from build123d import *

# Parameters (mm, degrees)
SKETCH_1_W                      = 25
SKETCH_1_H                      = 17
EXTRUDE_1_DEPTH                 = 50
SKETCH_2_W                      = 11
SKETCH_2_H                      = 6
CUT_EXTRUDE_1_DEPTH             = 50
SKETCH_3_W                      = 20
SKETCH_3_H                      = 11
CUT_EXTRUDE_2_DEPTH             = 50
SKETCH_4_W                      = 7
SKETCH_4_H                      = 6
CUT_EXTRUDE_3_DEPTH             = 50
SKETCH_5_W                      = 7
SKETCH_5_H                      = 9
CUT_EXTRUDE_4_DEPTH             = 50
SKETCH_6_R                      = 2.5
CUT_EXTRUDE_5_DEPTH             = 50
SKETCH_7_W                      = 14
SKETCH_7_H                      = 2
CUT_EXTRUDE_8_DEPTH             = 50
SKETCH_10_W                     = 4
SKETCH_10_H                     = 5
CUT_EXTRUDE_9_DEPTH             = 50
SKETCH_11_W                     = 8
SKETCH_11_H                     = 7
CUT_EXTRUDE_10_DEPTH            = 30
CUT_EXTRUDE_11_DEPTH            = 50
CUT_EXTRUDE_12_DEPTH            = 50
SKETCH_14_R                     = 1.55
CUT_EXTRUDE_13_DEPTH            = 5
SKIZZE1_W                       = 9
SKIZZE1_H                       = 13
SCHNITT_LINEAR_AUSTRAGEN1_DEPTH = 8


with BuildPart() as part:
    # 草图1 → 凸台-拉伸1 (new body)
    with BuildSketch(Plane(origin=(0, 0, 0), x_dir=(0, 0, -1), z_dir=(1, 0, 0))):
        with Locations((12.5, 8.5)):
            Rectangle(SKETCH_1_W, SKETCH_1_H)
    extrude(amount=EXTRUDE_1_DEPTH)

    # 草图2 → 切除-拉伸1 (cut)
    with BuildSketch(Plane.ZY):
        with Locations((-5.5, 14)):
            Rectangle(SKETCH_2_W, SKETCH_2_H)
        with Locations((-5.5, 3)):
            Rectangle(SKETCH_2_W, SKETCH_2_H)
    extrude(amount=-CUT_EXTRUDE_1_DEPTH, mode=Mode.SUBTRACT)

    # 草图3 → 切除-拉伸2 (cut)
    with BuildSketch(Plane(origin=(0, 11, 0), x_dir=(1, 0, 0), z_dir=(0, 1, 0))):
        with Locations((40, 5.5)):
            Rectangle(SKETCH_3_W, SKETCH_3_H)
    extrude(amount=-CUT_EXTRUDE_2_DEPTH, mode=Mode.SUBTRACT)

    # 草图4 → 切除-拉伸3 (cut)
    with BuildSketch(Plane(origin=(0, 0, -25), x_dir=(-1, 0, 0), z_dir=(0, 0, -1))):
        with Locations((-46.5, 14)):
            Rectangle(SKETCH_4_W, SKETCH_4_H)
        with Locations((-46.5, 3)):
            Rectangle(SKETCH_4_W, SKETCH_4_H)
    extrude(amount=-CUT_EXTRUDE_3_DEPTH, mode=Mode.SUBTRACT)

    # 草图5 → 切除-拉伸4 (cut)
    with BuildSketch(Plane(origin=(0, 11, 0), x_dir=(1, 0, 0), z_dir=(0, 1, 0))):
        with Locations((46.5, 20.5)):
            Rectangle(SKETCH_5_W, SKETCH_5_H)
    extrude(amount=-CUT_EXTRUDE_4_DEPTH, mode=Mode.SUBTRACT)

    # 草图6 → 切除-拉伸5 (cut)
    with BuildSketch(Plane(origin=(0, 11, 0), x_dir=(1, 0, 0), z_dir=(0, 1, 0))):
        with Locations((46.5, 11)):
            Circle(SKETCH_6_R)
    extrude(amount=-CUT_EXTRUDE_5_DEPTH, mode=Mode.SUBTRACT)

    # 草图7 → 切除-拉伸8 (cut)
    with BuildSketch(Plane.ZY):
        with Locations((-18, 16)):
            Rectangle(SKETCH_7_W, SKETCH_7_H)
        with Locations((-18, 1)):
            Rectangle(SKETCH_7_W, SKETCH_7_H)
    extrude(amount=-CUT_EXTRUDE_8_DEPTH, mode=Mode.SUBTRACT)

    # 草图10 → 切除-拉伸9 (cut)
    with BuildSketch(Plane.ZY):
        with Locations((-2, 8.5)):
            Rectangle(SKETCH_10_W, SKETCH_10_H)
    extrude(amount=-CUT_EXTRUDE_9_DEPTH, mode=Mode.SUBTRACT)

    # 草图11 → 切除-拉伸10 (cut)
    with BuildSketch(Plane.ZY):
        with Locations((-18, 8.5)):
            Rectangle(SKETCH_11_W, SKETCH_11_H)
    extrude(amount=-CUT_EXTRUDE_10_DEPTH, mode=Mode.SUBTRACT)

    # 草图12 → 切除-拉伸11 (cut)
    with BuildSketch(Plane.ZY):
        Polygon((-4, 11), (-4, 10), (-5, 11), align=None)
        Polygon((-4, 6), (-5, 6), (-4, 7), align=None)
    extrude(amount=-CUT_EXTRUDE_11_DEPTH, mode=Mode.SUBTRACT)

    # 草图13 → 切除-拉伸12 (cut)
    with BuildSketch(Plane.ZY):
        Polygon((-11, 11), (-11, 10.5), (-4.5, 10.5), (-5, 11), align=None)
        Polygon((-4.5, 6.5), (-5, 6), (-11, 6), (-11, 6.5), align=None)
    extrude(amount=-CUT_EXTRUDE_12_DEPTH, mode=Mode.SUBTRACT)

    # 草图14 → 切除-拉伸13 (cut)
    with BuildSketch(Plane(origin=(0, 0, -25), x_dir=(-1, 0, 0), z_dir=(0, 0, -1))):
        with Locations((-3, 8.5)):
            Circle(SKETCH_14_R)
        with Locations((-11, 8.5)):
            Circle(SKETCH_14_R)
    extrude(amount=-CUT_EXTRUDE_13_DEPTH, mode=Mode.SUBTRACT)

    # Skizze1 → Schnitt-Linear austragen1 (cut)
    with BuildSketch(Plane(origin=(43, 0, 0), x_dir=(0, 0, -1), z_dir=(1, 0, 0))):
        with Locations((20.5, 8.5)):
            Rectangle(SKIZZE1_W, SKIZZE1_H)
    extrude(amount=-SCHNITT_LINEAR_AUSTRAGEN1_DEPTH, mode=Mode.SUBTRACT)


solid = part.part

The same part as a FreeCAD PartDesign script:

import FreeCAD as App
import Part
import Sketcher
Q = App.Units.Quantity

doc = App.newDocument("Part")
body = doc.addObject("PartDesign::Body", "Body")

sketch1 = body.newObject("Sketcher::SketchObject", "Sketch")
sketch1.AttachmentSupport = (doc.getObject("YZ_Plane"), [""])
sketch1.MapMode = "FlatFace"
sketch1.addGeometry(Part.LineSegment(App.Vector(17, 0, 0), App.Vector(0, 0, 0)), False)
sketch1.addGeometry(Part.LineSegment(App.Vector(0, 0, 0), App.Vector(0, -25, 0)), False)
sketch1.addGeometry(Part.LineSegment(App.Vector(0, -25, 0), App.Vector(17, -25, 0)), False)
sketch1.addGeometry(Part.LineSegment(App.Vector(17, -25, 0), App.Vector(17, 0, 0)), False)
sketch1.addConstraint(Sketcher.Constraint("Coincident", 0, 2, 1, 1))
sketch1.addConstraint(Sketcher.Constraint("Coincident", 1, 2, 2, 1))
sketch1.addConstraint(Sketcher.Constraint("Coincident", 2, 2, 3, 1))
sketch1.addConstraint(Sketcher.Constraint("Coincident", 3, 2, 0, 1))
sketch1.addConstraint(Sketcher.Constraint("Horizontal", 0))
sketch1.addConstraint(Sketcher.Constraint("Vertical", 1))
sketch1.addConstraint(Sketcher.Constraint("Horizontal", 2))
sketch1.addConstraint(Sketcher.Constraint("Vertical", 3))
sketch1.addConstraint(Sketcher.Constraint("Coincident", 0, 2, -1, 1))
sketch1.addConstraint(Sketcher.Constraint("DistanceX", 0, 2, 0, 1, Q("17 mm")))
sketch1.addConstraint(Sketcher.Constraint("DistanceY", 1, 2, 1, 1, Q("25 mm")))
pad1 = body.newObject("PartDesign::Pad", "Pad")
pad1.Profile = sketch1
pad1.Length = 50

sketch2 = body.newObject("Sketcher::SketchObject", "Sketch001")
sketch2.AttachmentSupport = (doc.getObject("YZ_Plane"), [""])
sketch2.MapMode = "FlatFace"
sketch2.addGeometry(Part.LineSegment(App.Vector(17, -11, 0), App.Vector(11, -11, 0)), False)
sketch2.addGeometry(Part.LineSegment(App.Vector(11, -11, 0), App.Vector(11, 0, 0)), False)
sketch2.addGeometry(Part.LineSegment(App.Vector(11, 0, 0), App.Vector(17, 0, 0)), False)
sketch2.addGeometry(Part.LineSegment(App.Vector(17, 0, 0), App.Vector(17, -11, 0)), False)
sketch2.addGeometry(Part.LineSegment(App.Vector(6, -11, 0), App.Vector(0, -11, 0)), False)
sketch2.addGeometry(Part.LineSegment(App.Vector(0, -11, 0), App.Vector(0, 0, 0)), False)
sketch2.addGeometry(Part.LineSegment(App.Vector(0, 0, 0), App.Vector(6, 0, 0)), False)
sketch2.addGeometry(Part.LineSegment(App.Vector(6, 0, 0), App.Vector(6, -11, 0)), False)
sketch2.addConstraint(Sketcher.Constraint("Coincident", 0, 2, 1, 1))
sketch2.addConstraint(Sketcher.Constraint("Coincident", 1, 2, 2, 1))
sketch2.addConstraint(Sketcher.Constraint("Coincident", 2, 2, 3, 1))
sketch2.addConstraint(Sketcher.Constraint("Coincident", 3, 2, 0, 1))
sketch2.addConstraint(Sketcher.Constraint("Coincident", 4, 2, 5, 1))
sketch2.addConstraint(Sketcher.Constraint("Coincident", 5, 2, 6, 1))
sketch2.addConstraint(Sketcher.Constraint("Coincident", 6, 2, 7, 1))
sketch2.addConstraint(Sketcher.Constraint("Coincident", 7, 2, 4, 1))
sketch2.addConstraint(Sketcher.Constraint("Horizontal", 0))
sketch2.addConstraint(Sketcher.Constraint("Vertical", 1))
sketch2.addConstraint(Sketcher.Constraint("Horizontal", 2))
sketch2.addConstraint(Sketcher.Constraint("Vertical", 3))
sketch2.addConstraint(Sketcher.Constraint("Horizontal", 4))
sketch2.addConstraint(Sketcher.Constraint("Vertical", 5))
sketch2.addConstraint(Sketcher.Constraint("Horizontal", 6))
sketch2.addConstraint(Sketcher.Constraint("Vertical", 7))
sketch2.addConstraint(Sketcher.Constraint("Coincident", 5, 2, -1, 1))
sketch2.addConstraint(Sketcher.Constraint("PointOnObject", 1, 2, -1))
sketch2.addConstraint(Sketcher.Constraint("Horizontal", 3, 2, 4, 2))
sketch2.addConstraint(Sketcher.Constraint("Equal", 2, 4))
sketch2.addConstraint(Sketcher.Constraint("DistanceX", 0, 2, 0, 1, Q("6 mm")))
sketch2.addConstraint(Sketcher.Constraint("DistanceY", 1, 1, 1, 2, Q("11 mm")))
sketch2.addConstraint(Sketcher.Constraint("DistanceX", -1, 1, 0, 2, Q("11 mm")))
pocket1 = body.newObject("PartDesign::Pocket", "Pocket")
pocket1.Profile = sketch2
pocket1.Length = 50
pocket1.Reversed = True

sketch3 = body.newObject("Sketcher::SketchObject", "Sketch002")
sketch3.AttachmentSupport = (doc.getObject("XZ_Plane"), [""])
sketch3.MapMode = "FlatFace"
sketch3.AttachmentOffset = App.Placement(App.Vector(0, 0, -11), App.Rotation())
sketch3.addGeometry(Part.LineSegment(App.Vector(30, -11, 0), App.Vector(30, 0, 0)), False)
sketch3.addGeometry(Part.LineSegment(App.Vector(30, 0, 0), App.Vector(50, 0, 0)), False)
sketch3.addGeometry(Part.LineSegment(App.Vector(50, 0, 0), App.Vector(50, -11, 0)), False)
sketch3.addGeometry(Part.LineSegment(App.Vector(50, -11, 0), App.Vector(30, -11, 0)), False)
sketch3.addConstraint(Sketcher.Constraint("Coincident", 0, 2, 1, 1))
sketch3.addConstraint(Sketcher.Constraint("Coincident", 1, 2, 2, 1))
sketch3.addConstraint(Sketcher.Constraint("Coincident", 2, 2, 3, 1))
sketch3.addConstraint(Sketcher.Constraint("Coincident", 3, 2, 0, 1))
sketch3.addConstraint(Sketcher.Constraint("Vertical", 0))
sketch3.addConstraint(Sketcher.Constraint("Horizontal", 1))
sketch3.addConstraint(Sketcher.Constraint("Vertical", 2))
sketch3.addConstraint(Sketcher.Constraint("Horizontal", 3))
sketch3.addConstraint(Sketcher.Constraint("PointOnObject", 0, 2, -1))
sketch3.addConstraint(Sketcher.Constraint("DistanceX", 1, 1, 1, 2, Q("20 mm")))
sketch3.addConstraint(Sketcher.Constraint("DistanceY", 0, 1, 0, 2, Q("11 mm")))
sketch3.addConstraint(Sketcher.Constraint("DistanceX", -1, 1, 0, 2, Q("30 mm")))
pocket2 = body.newObject("PartDesign::Pocket", "Pocket001")
pocket2.Profile = sketch3
pocket2.Length = 50
pocket2.Reversed = True

sketch4 = body.newObject("Sketcher::SketchObject", "Sketch003")
sketch4.AttachmentSupport = (doc.getObject("XY_Plane"), [""])
sketch4.MapMode = "FlatFace"
sketch4.AttachmentOffset = App.Placement(App.Vector(0, 0, -25), App.Rotation())
sketch4.addGeometry(Part.LineSegment(App.Vector(50, 17, 0), App.Vector(50, 11, 0)), False)
sketch4.addGeometry(Part.LineSegment(App.Vector(50, 11, 0), App.Vector(43, 11, 0)), False)
sketch4.addGeometry(Part.LineSegment(App.Vector(43, 11, 0), App.Vector(43, 17, 0)), False)
sketch4.addGeometry(Part.LineSegment(App.Vector(43, 17, 0), App.Vector(50, 17, 0)), False)
sketch4.addGeometry(Part.LineSegment(App.Vector(50, 6, 0), App.Vector(50, 0, 0)), False)
sketch4.addGeometry(Part.LineSegment(App.Vector(50, 0, 0), App.Vector(43, 0, 0)), False)
sketch4.addGeometry(Part.LineSegment(App.Vector(43, 0, 0), App.Vector(43, 6, 0)), False)
sketch4.addGeometry(Part.LineSegment(App.Vector(43, 6, 0), App.Vector(50, 6, 0)), False)
sketch4.addConstraint(Sketcher.Constraint("Coincident", 0, 2, 1, 1))
sketch4.addConstraint(Sketcher.Constraint("Coincident", 1, 2, 2, 1))
sketch4.addConstraint(Sketcher.Constraint("Coincident", 2, 2, 3, 1))
sketch4.addConstraint(Sketcher.Constraint("Coincident", 3, 2, 0, 1))
sketch4.addConstraint(Sketcher.Constraint("Coincident", 4, 2, 5, 1))
sketch4.addConstraint(Sketcher.Constraint("Coincident", 5, 2, 6, 1))
sketch4.addConstraint(Sketcher.Constraint("Coincident", 6, 2, 7, 1))
sketch4.addConstraint(Sketcher.Constraint("Coincident", 7, 2, 4, 1))
sketch4.addConstraint(Sketcher.Constraint("Vertical", 0))
sketch4.addConstraint(Sketcher.Constraint("Horizontal", 1))
sketch4.addConstraint(Sketcher.Constraint("Vertical", 2))
sketch4.addConstraint(Sketcher.Constraint("Horizontal", 3))
sketch4.addConstraint(Sketcher.Constraint("Vertical", 4))
sketch4.addConstraint(Sketcher.Constraint("Horizontal", 5))
sketch4.addConstraint(Sketcher.Constraint("Vertical", 6))
sketch4.addConstraint(Sketcher.Constraint("Horizontal", 7))
sketch4.addConstraint(Sketcher.Constraint("PointOnObject", 4, 2, -1))
sketch4.addConstraint(Sketcher.Constraint("Vertical", 3, 2, 4, 2))
sketch4.addConstraint(Sketcher.Constraint("Vertical", 2, 2, 5, 2))
sketch4.addConstraint(Sketcher.Constraint("Equal", 2, 4))
sketch4.addConstraint(Sketcher.Constraint("DistanceX", 1, 2, 1, 1, Q("7 mm")))
sketch4.addConstraint(Sketcher.Constraint("DistanceY", 0, 2, 0, 1, Q("6 mm")))
sketch4.addConstraint(Sketcher.Constraint("DistanceX", -1, 1, 0, 2, Q("50 mm")))
sketch4.addConstraint(Sketcher.Constraint("DistanceY", -1, 1, 0, 2, Q("11 mm")))
pocket3 = body.newObject("PartDesign::Pocket", "Pocket002")
pocket3.Profile = sketch4
pocket3.Length = 50
pocket3.Reversed = True

sketch5 = body.newObject("Sketcher::SketchObject", "Sketch004")
sketch5.AttachmentSupport = (doc.getObject("XZ_Plane"), [""])
sketch5.MapMode = "FlatFace"
sketch5.AttachmentOffset = App.Placement(App.Vector(0, 0, -11), App.Rotation())
sketch5.addGeometry(Part.LineSegment(App.Vector(43, -25, 0), App.Vector(43, -16, 0)), False)
sketch5.addGeometry(Part.LineSegment(App.Vector(43, -16, 0), App.Vector(50, -16, 0)), False)
sketch5.addGeometry(Part.LineSegment(App.Vector(50, -16, 0), App.Vector(50, -25, 0)), False)
sketch5.addGeometry(Part.LineSegment(App.Vector(50, -25, 0), App.Vector(43, -25, 0)), False)
sketch5.addConstraint(Sketcher.Constraint("Coincident", 0, 2, 1, 1))
sketch5.addConstraint(Sketcher.Constraint("Coincident", 1, 2, 2, 1))
sketch5.addConstraint(Sketcher.Constraint("Coincident", 2, 2, 3, 1))
sketch5.addConstraint(Sketcher.Constraint("Coincident", 3, 2, 0, 1))
sketch5.addConstraint(Sketcher.Constraint("Vertical", 0))
sketch5.addConstraint(Sketcher.Constraint("Horizontal", 1))
sketch5.addConstraint(Sketcher.Constraint("Vertical", 2))
sketch5.addConstraint(Sketcher.Constraint("Horizontal", 3))
sketch5.addConstraint(Sketcher.Constraint("DistanceX", 1, 1, 1, 2, Q("7 mm")))
sketch5.addConstraint(Sketcher.Constraint("DistanceY", 0, 1, 0, 2, Q("9 mm")))
sketch5.addConstraint(Sketcher.Constraint("DistanceX", -1, 1, 0, 2, Q("43 mm")))
sketch5.addConstraint(Sketcher.Constraint("DistanceY", 0, 2, -1, 1, Q("16 mm")))
pocket4 = body.newObject("PartDesign::Pocket", "Pocket003")
pocket4.Profile = sketch5
pocket4.Length = 50
pocket4.Reversed = True

sketch6 = body.newObject("Sketcher::SketchObject", "Sketch005")
sketch6.AttachmentSupport = (doc.getObject("XZ_Plane"), [""])
sketch6.MapMode = "FlatFace"
sketch6.AttachmentOffset = App.Placement(App.Vector(0, 0, -11), App.Rotation())
sketch6.addGeometry(Part.Circle(App.Vector(46.5, -11, 0), App.Vector(0, 0, 1), 2.5), False)
sketch6.addConstraint(Sketcher.Constraint("Diameter", 0, Q("5 mm")))
sketch6.addConstraint(Sketcher.Constraint("DistanceY", 0, 3, -1, 1, Q("11 mm")))
sketch6.addConstraint(Sketcher.Constraint("DistanceX", -1, 1, 0, 3, Q("46.5 mm")))
pocket5 = body.newObject("PartDesign::Pocket", "Pocket004")
pocket5.Profile = sketch6
pocket5.Length = 50
pocket5.Reversed = True

sketch7 = body.newObject("Sketcher::SketchObject", "Sketch006")
sketch7.AttachmentSupport = (doc.getObject("YZ_Plane"), [""])
sketch7.MapMode = "FlatFace"
sketch7.addGeometry(Part.LineSegment(App.Vector(17, -25, 0), App.Vector(15, -25, 0)), False)
sketch7.addGeometry(Part.LineSegment(App.Vector(15, -25, 0), App.Vector(15, -11, 0)), False)
sketch7.addGeometry(Part.LineSegment(App.Vector(15, -11, 0), App.Vector(17, -11, 0)), False)
sketch7.addGeometry(Part.LineSegment(App.Vector(17, -11, 0), App.Vector(17, -25, 0)), False)
sketch7.addGeometry(Part.LineSegment(App.Vector(2, -25, 0), App.Vector(0, -25, 0)), False)
sketch7.addGeometry(Part.LineSegment(App.Vector(0, -25, 0), App.Vector(0, -11, 0)), False)
sketch7.addGeometry(Part.LineSegment(App.Vector(0, -11, 0), App.Vector(2, -11, 0)), False)
sketch7.addGeometry(Part.LineSegment(App.Vector(2, -11, 0), App.Vector(2, -25, 0)), False)
sketch7.addConstraint(Sketcher.Constraint("Coincident", 0, 2, 1, 1))
sketch7.addConstraint(Sketcher.Constraint("Coincident", 1, 2, 2, 1))
sketch7.addConstraint(Sketcher.Constraint("Coincident", 2, 2, 3, 1))
sketch7.addConstraint(Sketcher.Constraint("Coincident", 3, 2, 0, 1))
sketch7.addConstraint(Sketcher.Constraint("Coincident", 4, 2, 5, 1))
sketch7.addConstraint(Sketcher.Constraint("Coincident", 5, 2, 6, 1))
sketch7.addConstraint(Sketcher.Constraint("Coincident", 6, 2, 7, 1))
sketch7.addConstraint(Sketcher.Constraint("Coincident", 7, 2, 4, 1))
sketch7.addConstraint(Sketcher.Constraint("Horizontal", 0))
sketch7.addConstraint(Sketcher.Constraint("Vertical", 1))
sketch7.addConstraint(Sketcher.Constraint("Horizontal", 2))
sketch7.addConstraint(Sketcher.Constraint("Vertical", 3))
sketch7.addConstraint(Sketcher.Constraint("Horizontal", 4))
sketch7.addConstraint(Sketcher.Constraint("Vertical", 5))
sketch7.addConstraint(Sketcher.Constraint("Horizontal", 6))
sketch7.addConstraint(Sketcher.Constraint("Vertical", 7))
sketch7.addConstraint(Sketcher.Constraint("PointOnObject", 4, 2, -2))
sketch7.addConstraint(Sketcher.Constraint("Horizontal", 3, 2, 4, 2))
sketch7.addConstraint(Sketcher.Constraint("Horizontal", 2, 2, 5, 2))
sketch7.addConstraint(Sketcher.Constraint("Equal", 2, 4))
sketch7.addConstraint(Sketcher.Constraint("DistanceX", 0, 2, 0, 1, Q("2 mm")))
sketch7.addConstraint(Sketcher.Constraint("DistanceY", 1, 1, 1, 2, Q("14 mm")))
sketch7.addConstraint(Sketcher.Constraint("DistanceX", -1, 1, 0, 2, Q("15 mm")))
sketch7.addConstraint(Sketcher.Constraint("DistanceY", 0, 2, -1, 1, Q("25 mm")))
pocket6 = body.newObject("PartDesign::Pocket", "Pocket005")
pocket6.Profile = sketch7
pocket6.Length = 50
pocket6.Reversed = True

sketch8 = body.newObject("Sketcher::SketchObject", "Sketch007")
sketch8.AttachmentSupport = (doc.getObject("YZ_Plane"), [""])
sketch8.MapMode = "FlatFace"
sketch8.addGeometry(Part.LineSegment(App.Vector(11, -4, 0), App.Vector(6, -4, 0)), False)
sketch8.addGeometry(Part.LineSegment(App.Vector(6, -4, 0), App.Vector(6, 0, 0)), False)
sketch8.addGeometry(Part.LineSegment(App.Vector(6, 0, 0), App.Vector(11, 0, 0)), False)
sketch8.addGeometry(Part.LineSegment(App.Vector(11, 0, 0), App.Vector(11, -4, 0)), False)
sketch8.addConstraint(Sketcher.Constraint("Coincident", 0, 2, 1, 1))
sketch8.addConstraint(Sketcher.Constraint("Coincident", 1, 2, 2, 1))
sketch8.addConstraint(Sketcher.Constraint("Coincident", 2, 2, 3, 1))
sketch8.addConstraint(Sketcher.Constraint("Coincident", 3, 2, 0, 1))
sketch8.addConstraint(Sketcher.Constraint("Horizontal", 0))
sketch8.addConstraint(Sketcher.Constraint("Vertical", 1))
sketch8.addConstraint(Sketcher.Constraint("Horizontal", 2))
sketch8.addConstraint(Sketcher.Constraint("Vertical", 3))
sketch8.addConstraint(Sketcher.Constraint("PointOnObject", 1, 2, -1))
sketch8.addConstraint(Sketcher.Constraint("DistanceX", 0, 2, 0, 1, Q("5 mm")))
sketch8.addConstraint(Sketcher.Constraint("DistanceY", 1, 1, 1, 2, Q("4 mm")))
sketch8.addConstraint(Sketcher.Constraint("DistanceX", -1, 1, 0, 2, Q("6 mm")))
pocket7 = body.newObject("PartDesign::Pocket", "Pocket006")
pocket7.Profile = sketch8
pocket7.Length = 50
pocket7.Reversed = True

sketch9 = body.newObject("Sketcher::SketchObject", "Sketch008")
sketch9.AttachmentSupport = (doc.getObject("YZ_Plane"), [""])
sketch9.MapMode = "FlatFace"
sketch9.addGeometry(Part.LineSegment(App.Vector(12, -22, 0), App.Vector(5, -22, 0)), False)
sketch9.addGeometry(Part.LineSegment(App.Vector(5, -22, 0), App.Vector(5, -14, 0)), False)
sketch9.addGeometry(Part.LineSegment(App.Vector(5, -14, 0), App.Vector(12, -14, 0)), False)
sketch9.addGeometry(Part.LineSegment(App.Vector(12, -14, 0), App.Vector(12, -22, 0)), False)
sketch9.addConstraint(Sketcher.Constraint("Coincident", 0, 2, 1, 1))
sketch9.addConstraint(Sketcher.Constraint("Coincident", 1, 2, 2, 1))
sketch9.addConstraint(Sketcher.Constraint("Coincident", 2, 2, 3, 1))
sketch9.addConstraint(Sketcher.Constraint("Coincident", 3, 2, 0, 1))
sketch9.addConstraint(Sketcher.Constraint("Horizontal", 0))
sketch9.addConstraint(Sketcher.Constraint("Vertical", 1))
sketch9.addConstraint(Sketcher.Constraint("Horizontal", 2))
sketch9.addConstraint(Sketcher.Constraint("Vertical", 3))
sketch9.addConstraint(Sketcher.Constraint("DistanceX", 0, 2, 0, 1, Q("7 mm")))
sketch9.addConstraint(Sketcher.Constraint("DistanceY", 1, 1, 1, 2, Q("8 mm")))
sketch9.addConstraint(Sketcher.Constraint("DistanceX", -1, 1, 0, 2, Q("5 mm")))
sketch9.addConstraint(Sketcher.Constraint("DistanceY", 0, 2, -1, 1, Q("22 mm")))
pocket8 = body.newObject("PartDesign::Pocket", "Pocket007")
pocket8.Profile = sketch9
pocket8.Length = 30
pocket8.Reversed = True

sketch10 = body.newObject("Sketcher::SketchObject", "Sketch009")
sketch10.AttachmentSupport = (doc.getObject("YZ_Plane"), [""])
sketch10.MapMode = "FlatFace"
sketch10.addGeometry(Part.LineSegment(App.Vector(10, -4, 0), App.Vector(11, -4, 0)), False)
sketch10.addGeometry(Part.LineSegment(App.Vector(11, -4, 0), App.Vector(11, -5, 0)), False)
sketch10.addGeometry(Part.LineSegment(App.Vector(11, -5, 0), App.Vector(10, -4, 0)), False)
sketch10.addGeometry(Part.LineSegment(App.Vector(6, -5, 0), App.Vector(6, -4, 0)), False)
sketch10.addGeometry(Part.LineSegment(App.Vector(6, -4, 0), App.Vector(7, -4, 0)), False)
sketch10.addGeometry(Part.LineSegment(App.Vector(7, -4, 0), App.Vector(6, -5, 0)), False)
sketch10.addConstraint(Sketcher.Constraint("Coincident", 0, 2, 1, 1))
sketch10.addConstraint(Sketcher.Constraint("Coincident", 1, 2, 2, 1))
sketch10.addConstraint(Sketcher.Constraint("Coincident", 2, 2, 0, 1))
sketch10.addConstraint(Sketcher.Constraint("Coincident", 3, 2, 4, 1))
sketch10.addConstraint(Sketcher.Constraint("Coincident", 4, 2, 5, 1))
sketch10.addConstraint(Sketcher.Constraint("Coincident", 5, 2, 3, 1))
sketch10.addConstraint(Sketcher.Constraint("Horizontal", 0))
sketch10.addConstraint(Sketcher.Constraint("Vertical", 1))
sketch10.addConstraint(Sketcher.Constraint("Vertical", 3))
sketch10.addConstraint(Sketcher.Constraint("Horizontal", 4))
sketch10.addConstraint(Sketcher.Constraint("Perpendicular", 2, 5))
sketch10.addConstraint(Sketcher.Constraint("Horizontal", 2, 2, 3, 2))
sketch10.addConstraint(Sketcher.Constraint("Horizontal", 1, 2, 5, 2))
sketch10.addConstraint(Sketcher.Constraint("Equal", 0, 4))
sketch10.addConstraint(Sketcher.Constraint("DistanceX", 0, 1, 0, 2, Q("1 mm")))
sketch10.addConstraint(Sketcher.Constraint("DistanceX", -1, 1, 0, 2, Q("11 mm")))
sketch10.addConstraint(Sketcher.Constraint("DistanceY", 0, 2, -1, 1, Q("4 mm")))
sketch10.addConstraint(Sketcher.Constraint("DistanceX", -1, 1, 3, 2, Q("6 mm")))
pocket9 = body.newObject("PartDesign::Pocket", "Pocket008")
pocket9.Profile = sketch10
pocket9.Length = 50
pocket9.Reversed = True

sketch11 = body.newObject("Sketcher::SketchObject", "Sketch010")
sketch11.AttachmentSupport = (doc.getObject("YZ_Plane"), [""])
sketch11.MapMode = "FlatFace"
sketch11.addGeometry(Part.LineSegment(App.Vector(11, -11, 0), App.Vector(10.5, -11, 0)), False)
sketch11.addGeometry(Part.LineSegment(App.Vector(10.5, -11, 0), App.Vector(10.5, -4.5, 0)), False)
sketch11.addGeometry(Part.LineSegment(App.Vector(10.5, -4.5, 0), App.Vector(11, -5, 0)), False)
sketch11.addGeometry(Part.LineSegment(App.Vector(11, -5, 0), App.Vector(11, -11, 0)), False)
sketch11.addGeometry(Part.LineSegment(App.Vector(6, -5, 0), App.Vector(6.5, -4.5, 0)), False)
sketch11.addGeometry(Part.LineSegment(App.Vector(6.5, -4.5, 0), App.Vector(6.5, -11, 0)), False)
sketch11.addGeometry(Part.LineSegment(App.Vector(6.5, -11, 0), App.Vector(6, -11, 0)), False)
sketch11.addGeometry(Part.LineSegment(App.Vector(6, -11, 0), App.Vector(6, -5, 0)), False)
sketch11.addConstraint(Sketcher.Constraint("Coincident", 0, 2, 1, 1))
sketch11.addConstraint(Sketcher.Constraint("Coincident", 1, 2, 2, 1))
sketch11.addConstraint(Sketcher.Constraint("Coincident", 2, 2, 3, 1))
sketch11.addConstraint(Sketcher.Constraint("Coincident", 3, 2, 0, 1))
sketch11.addConstraint(Sketcher.Constraint("Coincident", 4, 2, 5, 1))
sketch11.addConstraint(Sketcher.Constraint("Coincident", 5, 2, 6, 1))
sketch11.addConstraint(Sketcher.Constraint("Coincident", 6, 2, 7, 1))
sketch11.addConstraint(Sketcher.Constraint("Coincident", 7, 2, 4, 1))
sketch11.addConstraint(Sketcher.Constraint("Horizontal", 0))
sketch11.addConstraint(Sketcher.Constraint("Vertical", 1))
sketch11.addConstraint(Sketcher.Constraint("Vertical", 3))
sketch11.addConstraint(Sketcher.Constraint("Vertical", 5))
sketch11.addConstraint(Sketcher.Constraint("Horizontal", 6))
sketch11.addConstraint(Sketcher.Constraint("Vertical", 7))
sketch11.addConstraint(Sketcher.Constraint("Perpendicular", 2, 4))
sketch11.addConstraint(Sketcher.Constraint("Horizontal", 1, 2, 4, 2))
sketch11.addConstraint(Sketcher.Constraint("Horizontal", 3, 2, 5, 2))
sketch11.addConstraint(Sketcher.Constraint("Horizontal", 2, 2, 7, 2))
sketch11.addConstraint(Sketcher.Constraint("Equal", 0, 6))
sketch11.addConstraint(Sketcher.Constraint("DistanceY", 3, 2, 3, 1, Q("6 mm")))
sketch11.addConstraint(Sketcher.Constraint("DistanceX", 0, 2, 0, 1, Q("0.5 mm")))
sketch11.addConstraint(Sketcher.Constraint("DistanceY", 0, 2, -1, 1, Q("11 mm")))
sketch11.addConstraint(Sketcher.Constraint("DistanceX", -1, 1, 2, 2, Q("11 mm")))
sketch11.addConstraint(Sketcher.Constraint("DistanceX", -1, 1, 6, 2, Q("6 mm")))
pocket10 = body.newObject("PartDesign::Pocket", "Pocket009")
pocket10.Profile = sketch11
pocket10.Length = 50
pocket10.Reversed = True

sketch12 = body.newObject("Sketcher::SketchObject", "Sketch011")
sketch12.AttachmentSupport = (doc.getObject("XY_Plane"), [""])
sketch12.MapMode = "FlatFace"
sketch12.AttachmentOffset = App.Placement(App.Vector(0, 0, -25), App.Rotation())
sketch12.addGeometry(Part.Circle(App.Vector(3, 8.5, 0), App.Vector(0, 0, 1), 1.6), False)
sketch12.addGeometry(Part.Circle(App.Vector(11, 8.5, 0), App.Vector(0, 0, 1), 1.6), False)
sketch12.addConstraint(Sketcher.Constraint("Equal", 0, 1))
sketch12.addConstraint(Sketcher.Constraint("Horizontal", 0, 3, 1, 3))
sketch12.addConstraint(Sketcher.Constraint("Diameter", 0, Q("3.1 mm")))
sketch12.addConstraint(Sketcher.Constraint("DistanceX", -1, 1, 0, 3, Q("3 mm")))
sketch12.addConstraint(Sketcher.Constraint("DistanceX", -1, 1, 1, 3, Q("11 mm")))
sketch12.addConstraint(Sketcher.Constraint("DistanceY", -1, 1, 0, 3, Q("8.5 mm")))
pocket11 = body.newObject("PartDesign::Pocket", "Pocket010")
pocket11.Profile = sketch12
pocket11.Length = 5
pocket11.Reversed = True

sketch13 = body.newObject("Sketcher::SketchObject", "Sketch012")
sketch13.AttachmentSupport = (doc.getObject("YZ_Plane"), [""])
sketch13.MapMode = "FlatFace"
sketch13.AttachmentOffset = App.Placement(App.Vector(0, 0, 43), App.Rotation())
sketch13.addGeometry(Part.LineSegment(App.Vector(15, -16, 0), App.Vector(2, -16, 0)), False)
sketch13.addGeometry(Part.LineSegment(App.Vector(2, -16, 0), App.Vector(2, -25, 0)), False)
sketch13.addGeometry(Part.LineSegment(App.Vector(2, -25, 0), App.Vector(15, -25, 0)), False)
sketch13.addGeometry(Part.LineSegment(App.Vector(15, -25, 0), App.Vector(15, -16, 0)), False)
sketch13.addConstraint(Sketcher.Constraint("Coincident", 0, 2, 1, 1))
sketch13.addConstraint(Sketcher.Constraint("Coincident", 1, 2, 2, 1))
sketch13.addConstraint(Sketcher.Constraint("Coincident", 2, 2, 3, 1))
sketch13.addConstraint(Sketcher.Constraint("Coincident", 3, 2, 0, 1))
sketch13.addConstraint(Sketcher.Constraint("Horizontal", 0))
sketch13.addConstraint(Sketcher.Constraint("Vertical", 1))
sketch13.addConstraint(Sketcher.Constraint("Horizontal", 2))
sketch13.addConstraint(Sketcher.Constraint("Vertical", 3))
sketch13.addConstraint(Sketcher.Constraint("DistanceX", 0, 2, 0, 1, Q("13 mm")))
sketch13.addConstraint(Sketcher.Constraint("DistanceY", 1, 2, 1, 1, Q("9 mm")))
sketch13.addConstraint(Sketcher.Constraint("DistanceX", -1, 1, 0, 2, Q("2 mm")))
sketch13.addConstraint(Sketcher.Constraint("DistanceY", 0, 2, -1, 1, Q("16 mm")))
pocket12 = body.newObject("PartDesign::Pocket", "Pocket011")
pocket12.Profile = sketch13
pocket12.Length = 8

doc.recompute()
